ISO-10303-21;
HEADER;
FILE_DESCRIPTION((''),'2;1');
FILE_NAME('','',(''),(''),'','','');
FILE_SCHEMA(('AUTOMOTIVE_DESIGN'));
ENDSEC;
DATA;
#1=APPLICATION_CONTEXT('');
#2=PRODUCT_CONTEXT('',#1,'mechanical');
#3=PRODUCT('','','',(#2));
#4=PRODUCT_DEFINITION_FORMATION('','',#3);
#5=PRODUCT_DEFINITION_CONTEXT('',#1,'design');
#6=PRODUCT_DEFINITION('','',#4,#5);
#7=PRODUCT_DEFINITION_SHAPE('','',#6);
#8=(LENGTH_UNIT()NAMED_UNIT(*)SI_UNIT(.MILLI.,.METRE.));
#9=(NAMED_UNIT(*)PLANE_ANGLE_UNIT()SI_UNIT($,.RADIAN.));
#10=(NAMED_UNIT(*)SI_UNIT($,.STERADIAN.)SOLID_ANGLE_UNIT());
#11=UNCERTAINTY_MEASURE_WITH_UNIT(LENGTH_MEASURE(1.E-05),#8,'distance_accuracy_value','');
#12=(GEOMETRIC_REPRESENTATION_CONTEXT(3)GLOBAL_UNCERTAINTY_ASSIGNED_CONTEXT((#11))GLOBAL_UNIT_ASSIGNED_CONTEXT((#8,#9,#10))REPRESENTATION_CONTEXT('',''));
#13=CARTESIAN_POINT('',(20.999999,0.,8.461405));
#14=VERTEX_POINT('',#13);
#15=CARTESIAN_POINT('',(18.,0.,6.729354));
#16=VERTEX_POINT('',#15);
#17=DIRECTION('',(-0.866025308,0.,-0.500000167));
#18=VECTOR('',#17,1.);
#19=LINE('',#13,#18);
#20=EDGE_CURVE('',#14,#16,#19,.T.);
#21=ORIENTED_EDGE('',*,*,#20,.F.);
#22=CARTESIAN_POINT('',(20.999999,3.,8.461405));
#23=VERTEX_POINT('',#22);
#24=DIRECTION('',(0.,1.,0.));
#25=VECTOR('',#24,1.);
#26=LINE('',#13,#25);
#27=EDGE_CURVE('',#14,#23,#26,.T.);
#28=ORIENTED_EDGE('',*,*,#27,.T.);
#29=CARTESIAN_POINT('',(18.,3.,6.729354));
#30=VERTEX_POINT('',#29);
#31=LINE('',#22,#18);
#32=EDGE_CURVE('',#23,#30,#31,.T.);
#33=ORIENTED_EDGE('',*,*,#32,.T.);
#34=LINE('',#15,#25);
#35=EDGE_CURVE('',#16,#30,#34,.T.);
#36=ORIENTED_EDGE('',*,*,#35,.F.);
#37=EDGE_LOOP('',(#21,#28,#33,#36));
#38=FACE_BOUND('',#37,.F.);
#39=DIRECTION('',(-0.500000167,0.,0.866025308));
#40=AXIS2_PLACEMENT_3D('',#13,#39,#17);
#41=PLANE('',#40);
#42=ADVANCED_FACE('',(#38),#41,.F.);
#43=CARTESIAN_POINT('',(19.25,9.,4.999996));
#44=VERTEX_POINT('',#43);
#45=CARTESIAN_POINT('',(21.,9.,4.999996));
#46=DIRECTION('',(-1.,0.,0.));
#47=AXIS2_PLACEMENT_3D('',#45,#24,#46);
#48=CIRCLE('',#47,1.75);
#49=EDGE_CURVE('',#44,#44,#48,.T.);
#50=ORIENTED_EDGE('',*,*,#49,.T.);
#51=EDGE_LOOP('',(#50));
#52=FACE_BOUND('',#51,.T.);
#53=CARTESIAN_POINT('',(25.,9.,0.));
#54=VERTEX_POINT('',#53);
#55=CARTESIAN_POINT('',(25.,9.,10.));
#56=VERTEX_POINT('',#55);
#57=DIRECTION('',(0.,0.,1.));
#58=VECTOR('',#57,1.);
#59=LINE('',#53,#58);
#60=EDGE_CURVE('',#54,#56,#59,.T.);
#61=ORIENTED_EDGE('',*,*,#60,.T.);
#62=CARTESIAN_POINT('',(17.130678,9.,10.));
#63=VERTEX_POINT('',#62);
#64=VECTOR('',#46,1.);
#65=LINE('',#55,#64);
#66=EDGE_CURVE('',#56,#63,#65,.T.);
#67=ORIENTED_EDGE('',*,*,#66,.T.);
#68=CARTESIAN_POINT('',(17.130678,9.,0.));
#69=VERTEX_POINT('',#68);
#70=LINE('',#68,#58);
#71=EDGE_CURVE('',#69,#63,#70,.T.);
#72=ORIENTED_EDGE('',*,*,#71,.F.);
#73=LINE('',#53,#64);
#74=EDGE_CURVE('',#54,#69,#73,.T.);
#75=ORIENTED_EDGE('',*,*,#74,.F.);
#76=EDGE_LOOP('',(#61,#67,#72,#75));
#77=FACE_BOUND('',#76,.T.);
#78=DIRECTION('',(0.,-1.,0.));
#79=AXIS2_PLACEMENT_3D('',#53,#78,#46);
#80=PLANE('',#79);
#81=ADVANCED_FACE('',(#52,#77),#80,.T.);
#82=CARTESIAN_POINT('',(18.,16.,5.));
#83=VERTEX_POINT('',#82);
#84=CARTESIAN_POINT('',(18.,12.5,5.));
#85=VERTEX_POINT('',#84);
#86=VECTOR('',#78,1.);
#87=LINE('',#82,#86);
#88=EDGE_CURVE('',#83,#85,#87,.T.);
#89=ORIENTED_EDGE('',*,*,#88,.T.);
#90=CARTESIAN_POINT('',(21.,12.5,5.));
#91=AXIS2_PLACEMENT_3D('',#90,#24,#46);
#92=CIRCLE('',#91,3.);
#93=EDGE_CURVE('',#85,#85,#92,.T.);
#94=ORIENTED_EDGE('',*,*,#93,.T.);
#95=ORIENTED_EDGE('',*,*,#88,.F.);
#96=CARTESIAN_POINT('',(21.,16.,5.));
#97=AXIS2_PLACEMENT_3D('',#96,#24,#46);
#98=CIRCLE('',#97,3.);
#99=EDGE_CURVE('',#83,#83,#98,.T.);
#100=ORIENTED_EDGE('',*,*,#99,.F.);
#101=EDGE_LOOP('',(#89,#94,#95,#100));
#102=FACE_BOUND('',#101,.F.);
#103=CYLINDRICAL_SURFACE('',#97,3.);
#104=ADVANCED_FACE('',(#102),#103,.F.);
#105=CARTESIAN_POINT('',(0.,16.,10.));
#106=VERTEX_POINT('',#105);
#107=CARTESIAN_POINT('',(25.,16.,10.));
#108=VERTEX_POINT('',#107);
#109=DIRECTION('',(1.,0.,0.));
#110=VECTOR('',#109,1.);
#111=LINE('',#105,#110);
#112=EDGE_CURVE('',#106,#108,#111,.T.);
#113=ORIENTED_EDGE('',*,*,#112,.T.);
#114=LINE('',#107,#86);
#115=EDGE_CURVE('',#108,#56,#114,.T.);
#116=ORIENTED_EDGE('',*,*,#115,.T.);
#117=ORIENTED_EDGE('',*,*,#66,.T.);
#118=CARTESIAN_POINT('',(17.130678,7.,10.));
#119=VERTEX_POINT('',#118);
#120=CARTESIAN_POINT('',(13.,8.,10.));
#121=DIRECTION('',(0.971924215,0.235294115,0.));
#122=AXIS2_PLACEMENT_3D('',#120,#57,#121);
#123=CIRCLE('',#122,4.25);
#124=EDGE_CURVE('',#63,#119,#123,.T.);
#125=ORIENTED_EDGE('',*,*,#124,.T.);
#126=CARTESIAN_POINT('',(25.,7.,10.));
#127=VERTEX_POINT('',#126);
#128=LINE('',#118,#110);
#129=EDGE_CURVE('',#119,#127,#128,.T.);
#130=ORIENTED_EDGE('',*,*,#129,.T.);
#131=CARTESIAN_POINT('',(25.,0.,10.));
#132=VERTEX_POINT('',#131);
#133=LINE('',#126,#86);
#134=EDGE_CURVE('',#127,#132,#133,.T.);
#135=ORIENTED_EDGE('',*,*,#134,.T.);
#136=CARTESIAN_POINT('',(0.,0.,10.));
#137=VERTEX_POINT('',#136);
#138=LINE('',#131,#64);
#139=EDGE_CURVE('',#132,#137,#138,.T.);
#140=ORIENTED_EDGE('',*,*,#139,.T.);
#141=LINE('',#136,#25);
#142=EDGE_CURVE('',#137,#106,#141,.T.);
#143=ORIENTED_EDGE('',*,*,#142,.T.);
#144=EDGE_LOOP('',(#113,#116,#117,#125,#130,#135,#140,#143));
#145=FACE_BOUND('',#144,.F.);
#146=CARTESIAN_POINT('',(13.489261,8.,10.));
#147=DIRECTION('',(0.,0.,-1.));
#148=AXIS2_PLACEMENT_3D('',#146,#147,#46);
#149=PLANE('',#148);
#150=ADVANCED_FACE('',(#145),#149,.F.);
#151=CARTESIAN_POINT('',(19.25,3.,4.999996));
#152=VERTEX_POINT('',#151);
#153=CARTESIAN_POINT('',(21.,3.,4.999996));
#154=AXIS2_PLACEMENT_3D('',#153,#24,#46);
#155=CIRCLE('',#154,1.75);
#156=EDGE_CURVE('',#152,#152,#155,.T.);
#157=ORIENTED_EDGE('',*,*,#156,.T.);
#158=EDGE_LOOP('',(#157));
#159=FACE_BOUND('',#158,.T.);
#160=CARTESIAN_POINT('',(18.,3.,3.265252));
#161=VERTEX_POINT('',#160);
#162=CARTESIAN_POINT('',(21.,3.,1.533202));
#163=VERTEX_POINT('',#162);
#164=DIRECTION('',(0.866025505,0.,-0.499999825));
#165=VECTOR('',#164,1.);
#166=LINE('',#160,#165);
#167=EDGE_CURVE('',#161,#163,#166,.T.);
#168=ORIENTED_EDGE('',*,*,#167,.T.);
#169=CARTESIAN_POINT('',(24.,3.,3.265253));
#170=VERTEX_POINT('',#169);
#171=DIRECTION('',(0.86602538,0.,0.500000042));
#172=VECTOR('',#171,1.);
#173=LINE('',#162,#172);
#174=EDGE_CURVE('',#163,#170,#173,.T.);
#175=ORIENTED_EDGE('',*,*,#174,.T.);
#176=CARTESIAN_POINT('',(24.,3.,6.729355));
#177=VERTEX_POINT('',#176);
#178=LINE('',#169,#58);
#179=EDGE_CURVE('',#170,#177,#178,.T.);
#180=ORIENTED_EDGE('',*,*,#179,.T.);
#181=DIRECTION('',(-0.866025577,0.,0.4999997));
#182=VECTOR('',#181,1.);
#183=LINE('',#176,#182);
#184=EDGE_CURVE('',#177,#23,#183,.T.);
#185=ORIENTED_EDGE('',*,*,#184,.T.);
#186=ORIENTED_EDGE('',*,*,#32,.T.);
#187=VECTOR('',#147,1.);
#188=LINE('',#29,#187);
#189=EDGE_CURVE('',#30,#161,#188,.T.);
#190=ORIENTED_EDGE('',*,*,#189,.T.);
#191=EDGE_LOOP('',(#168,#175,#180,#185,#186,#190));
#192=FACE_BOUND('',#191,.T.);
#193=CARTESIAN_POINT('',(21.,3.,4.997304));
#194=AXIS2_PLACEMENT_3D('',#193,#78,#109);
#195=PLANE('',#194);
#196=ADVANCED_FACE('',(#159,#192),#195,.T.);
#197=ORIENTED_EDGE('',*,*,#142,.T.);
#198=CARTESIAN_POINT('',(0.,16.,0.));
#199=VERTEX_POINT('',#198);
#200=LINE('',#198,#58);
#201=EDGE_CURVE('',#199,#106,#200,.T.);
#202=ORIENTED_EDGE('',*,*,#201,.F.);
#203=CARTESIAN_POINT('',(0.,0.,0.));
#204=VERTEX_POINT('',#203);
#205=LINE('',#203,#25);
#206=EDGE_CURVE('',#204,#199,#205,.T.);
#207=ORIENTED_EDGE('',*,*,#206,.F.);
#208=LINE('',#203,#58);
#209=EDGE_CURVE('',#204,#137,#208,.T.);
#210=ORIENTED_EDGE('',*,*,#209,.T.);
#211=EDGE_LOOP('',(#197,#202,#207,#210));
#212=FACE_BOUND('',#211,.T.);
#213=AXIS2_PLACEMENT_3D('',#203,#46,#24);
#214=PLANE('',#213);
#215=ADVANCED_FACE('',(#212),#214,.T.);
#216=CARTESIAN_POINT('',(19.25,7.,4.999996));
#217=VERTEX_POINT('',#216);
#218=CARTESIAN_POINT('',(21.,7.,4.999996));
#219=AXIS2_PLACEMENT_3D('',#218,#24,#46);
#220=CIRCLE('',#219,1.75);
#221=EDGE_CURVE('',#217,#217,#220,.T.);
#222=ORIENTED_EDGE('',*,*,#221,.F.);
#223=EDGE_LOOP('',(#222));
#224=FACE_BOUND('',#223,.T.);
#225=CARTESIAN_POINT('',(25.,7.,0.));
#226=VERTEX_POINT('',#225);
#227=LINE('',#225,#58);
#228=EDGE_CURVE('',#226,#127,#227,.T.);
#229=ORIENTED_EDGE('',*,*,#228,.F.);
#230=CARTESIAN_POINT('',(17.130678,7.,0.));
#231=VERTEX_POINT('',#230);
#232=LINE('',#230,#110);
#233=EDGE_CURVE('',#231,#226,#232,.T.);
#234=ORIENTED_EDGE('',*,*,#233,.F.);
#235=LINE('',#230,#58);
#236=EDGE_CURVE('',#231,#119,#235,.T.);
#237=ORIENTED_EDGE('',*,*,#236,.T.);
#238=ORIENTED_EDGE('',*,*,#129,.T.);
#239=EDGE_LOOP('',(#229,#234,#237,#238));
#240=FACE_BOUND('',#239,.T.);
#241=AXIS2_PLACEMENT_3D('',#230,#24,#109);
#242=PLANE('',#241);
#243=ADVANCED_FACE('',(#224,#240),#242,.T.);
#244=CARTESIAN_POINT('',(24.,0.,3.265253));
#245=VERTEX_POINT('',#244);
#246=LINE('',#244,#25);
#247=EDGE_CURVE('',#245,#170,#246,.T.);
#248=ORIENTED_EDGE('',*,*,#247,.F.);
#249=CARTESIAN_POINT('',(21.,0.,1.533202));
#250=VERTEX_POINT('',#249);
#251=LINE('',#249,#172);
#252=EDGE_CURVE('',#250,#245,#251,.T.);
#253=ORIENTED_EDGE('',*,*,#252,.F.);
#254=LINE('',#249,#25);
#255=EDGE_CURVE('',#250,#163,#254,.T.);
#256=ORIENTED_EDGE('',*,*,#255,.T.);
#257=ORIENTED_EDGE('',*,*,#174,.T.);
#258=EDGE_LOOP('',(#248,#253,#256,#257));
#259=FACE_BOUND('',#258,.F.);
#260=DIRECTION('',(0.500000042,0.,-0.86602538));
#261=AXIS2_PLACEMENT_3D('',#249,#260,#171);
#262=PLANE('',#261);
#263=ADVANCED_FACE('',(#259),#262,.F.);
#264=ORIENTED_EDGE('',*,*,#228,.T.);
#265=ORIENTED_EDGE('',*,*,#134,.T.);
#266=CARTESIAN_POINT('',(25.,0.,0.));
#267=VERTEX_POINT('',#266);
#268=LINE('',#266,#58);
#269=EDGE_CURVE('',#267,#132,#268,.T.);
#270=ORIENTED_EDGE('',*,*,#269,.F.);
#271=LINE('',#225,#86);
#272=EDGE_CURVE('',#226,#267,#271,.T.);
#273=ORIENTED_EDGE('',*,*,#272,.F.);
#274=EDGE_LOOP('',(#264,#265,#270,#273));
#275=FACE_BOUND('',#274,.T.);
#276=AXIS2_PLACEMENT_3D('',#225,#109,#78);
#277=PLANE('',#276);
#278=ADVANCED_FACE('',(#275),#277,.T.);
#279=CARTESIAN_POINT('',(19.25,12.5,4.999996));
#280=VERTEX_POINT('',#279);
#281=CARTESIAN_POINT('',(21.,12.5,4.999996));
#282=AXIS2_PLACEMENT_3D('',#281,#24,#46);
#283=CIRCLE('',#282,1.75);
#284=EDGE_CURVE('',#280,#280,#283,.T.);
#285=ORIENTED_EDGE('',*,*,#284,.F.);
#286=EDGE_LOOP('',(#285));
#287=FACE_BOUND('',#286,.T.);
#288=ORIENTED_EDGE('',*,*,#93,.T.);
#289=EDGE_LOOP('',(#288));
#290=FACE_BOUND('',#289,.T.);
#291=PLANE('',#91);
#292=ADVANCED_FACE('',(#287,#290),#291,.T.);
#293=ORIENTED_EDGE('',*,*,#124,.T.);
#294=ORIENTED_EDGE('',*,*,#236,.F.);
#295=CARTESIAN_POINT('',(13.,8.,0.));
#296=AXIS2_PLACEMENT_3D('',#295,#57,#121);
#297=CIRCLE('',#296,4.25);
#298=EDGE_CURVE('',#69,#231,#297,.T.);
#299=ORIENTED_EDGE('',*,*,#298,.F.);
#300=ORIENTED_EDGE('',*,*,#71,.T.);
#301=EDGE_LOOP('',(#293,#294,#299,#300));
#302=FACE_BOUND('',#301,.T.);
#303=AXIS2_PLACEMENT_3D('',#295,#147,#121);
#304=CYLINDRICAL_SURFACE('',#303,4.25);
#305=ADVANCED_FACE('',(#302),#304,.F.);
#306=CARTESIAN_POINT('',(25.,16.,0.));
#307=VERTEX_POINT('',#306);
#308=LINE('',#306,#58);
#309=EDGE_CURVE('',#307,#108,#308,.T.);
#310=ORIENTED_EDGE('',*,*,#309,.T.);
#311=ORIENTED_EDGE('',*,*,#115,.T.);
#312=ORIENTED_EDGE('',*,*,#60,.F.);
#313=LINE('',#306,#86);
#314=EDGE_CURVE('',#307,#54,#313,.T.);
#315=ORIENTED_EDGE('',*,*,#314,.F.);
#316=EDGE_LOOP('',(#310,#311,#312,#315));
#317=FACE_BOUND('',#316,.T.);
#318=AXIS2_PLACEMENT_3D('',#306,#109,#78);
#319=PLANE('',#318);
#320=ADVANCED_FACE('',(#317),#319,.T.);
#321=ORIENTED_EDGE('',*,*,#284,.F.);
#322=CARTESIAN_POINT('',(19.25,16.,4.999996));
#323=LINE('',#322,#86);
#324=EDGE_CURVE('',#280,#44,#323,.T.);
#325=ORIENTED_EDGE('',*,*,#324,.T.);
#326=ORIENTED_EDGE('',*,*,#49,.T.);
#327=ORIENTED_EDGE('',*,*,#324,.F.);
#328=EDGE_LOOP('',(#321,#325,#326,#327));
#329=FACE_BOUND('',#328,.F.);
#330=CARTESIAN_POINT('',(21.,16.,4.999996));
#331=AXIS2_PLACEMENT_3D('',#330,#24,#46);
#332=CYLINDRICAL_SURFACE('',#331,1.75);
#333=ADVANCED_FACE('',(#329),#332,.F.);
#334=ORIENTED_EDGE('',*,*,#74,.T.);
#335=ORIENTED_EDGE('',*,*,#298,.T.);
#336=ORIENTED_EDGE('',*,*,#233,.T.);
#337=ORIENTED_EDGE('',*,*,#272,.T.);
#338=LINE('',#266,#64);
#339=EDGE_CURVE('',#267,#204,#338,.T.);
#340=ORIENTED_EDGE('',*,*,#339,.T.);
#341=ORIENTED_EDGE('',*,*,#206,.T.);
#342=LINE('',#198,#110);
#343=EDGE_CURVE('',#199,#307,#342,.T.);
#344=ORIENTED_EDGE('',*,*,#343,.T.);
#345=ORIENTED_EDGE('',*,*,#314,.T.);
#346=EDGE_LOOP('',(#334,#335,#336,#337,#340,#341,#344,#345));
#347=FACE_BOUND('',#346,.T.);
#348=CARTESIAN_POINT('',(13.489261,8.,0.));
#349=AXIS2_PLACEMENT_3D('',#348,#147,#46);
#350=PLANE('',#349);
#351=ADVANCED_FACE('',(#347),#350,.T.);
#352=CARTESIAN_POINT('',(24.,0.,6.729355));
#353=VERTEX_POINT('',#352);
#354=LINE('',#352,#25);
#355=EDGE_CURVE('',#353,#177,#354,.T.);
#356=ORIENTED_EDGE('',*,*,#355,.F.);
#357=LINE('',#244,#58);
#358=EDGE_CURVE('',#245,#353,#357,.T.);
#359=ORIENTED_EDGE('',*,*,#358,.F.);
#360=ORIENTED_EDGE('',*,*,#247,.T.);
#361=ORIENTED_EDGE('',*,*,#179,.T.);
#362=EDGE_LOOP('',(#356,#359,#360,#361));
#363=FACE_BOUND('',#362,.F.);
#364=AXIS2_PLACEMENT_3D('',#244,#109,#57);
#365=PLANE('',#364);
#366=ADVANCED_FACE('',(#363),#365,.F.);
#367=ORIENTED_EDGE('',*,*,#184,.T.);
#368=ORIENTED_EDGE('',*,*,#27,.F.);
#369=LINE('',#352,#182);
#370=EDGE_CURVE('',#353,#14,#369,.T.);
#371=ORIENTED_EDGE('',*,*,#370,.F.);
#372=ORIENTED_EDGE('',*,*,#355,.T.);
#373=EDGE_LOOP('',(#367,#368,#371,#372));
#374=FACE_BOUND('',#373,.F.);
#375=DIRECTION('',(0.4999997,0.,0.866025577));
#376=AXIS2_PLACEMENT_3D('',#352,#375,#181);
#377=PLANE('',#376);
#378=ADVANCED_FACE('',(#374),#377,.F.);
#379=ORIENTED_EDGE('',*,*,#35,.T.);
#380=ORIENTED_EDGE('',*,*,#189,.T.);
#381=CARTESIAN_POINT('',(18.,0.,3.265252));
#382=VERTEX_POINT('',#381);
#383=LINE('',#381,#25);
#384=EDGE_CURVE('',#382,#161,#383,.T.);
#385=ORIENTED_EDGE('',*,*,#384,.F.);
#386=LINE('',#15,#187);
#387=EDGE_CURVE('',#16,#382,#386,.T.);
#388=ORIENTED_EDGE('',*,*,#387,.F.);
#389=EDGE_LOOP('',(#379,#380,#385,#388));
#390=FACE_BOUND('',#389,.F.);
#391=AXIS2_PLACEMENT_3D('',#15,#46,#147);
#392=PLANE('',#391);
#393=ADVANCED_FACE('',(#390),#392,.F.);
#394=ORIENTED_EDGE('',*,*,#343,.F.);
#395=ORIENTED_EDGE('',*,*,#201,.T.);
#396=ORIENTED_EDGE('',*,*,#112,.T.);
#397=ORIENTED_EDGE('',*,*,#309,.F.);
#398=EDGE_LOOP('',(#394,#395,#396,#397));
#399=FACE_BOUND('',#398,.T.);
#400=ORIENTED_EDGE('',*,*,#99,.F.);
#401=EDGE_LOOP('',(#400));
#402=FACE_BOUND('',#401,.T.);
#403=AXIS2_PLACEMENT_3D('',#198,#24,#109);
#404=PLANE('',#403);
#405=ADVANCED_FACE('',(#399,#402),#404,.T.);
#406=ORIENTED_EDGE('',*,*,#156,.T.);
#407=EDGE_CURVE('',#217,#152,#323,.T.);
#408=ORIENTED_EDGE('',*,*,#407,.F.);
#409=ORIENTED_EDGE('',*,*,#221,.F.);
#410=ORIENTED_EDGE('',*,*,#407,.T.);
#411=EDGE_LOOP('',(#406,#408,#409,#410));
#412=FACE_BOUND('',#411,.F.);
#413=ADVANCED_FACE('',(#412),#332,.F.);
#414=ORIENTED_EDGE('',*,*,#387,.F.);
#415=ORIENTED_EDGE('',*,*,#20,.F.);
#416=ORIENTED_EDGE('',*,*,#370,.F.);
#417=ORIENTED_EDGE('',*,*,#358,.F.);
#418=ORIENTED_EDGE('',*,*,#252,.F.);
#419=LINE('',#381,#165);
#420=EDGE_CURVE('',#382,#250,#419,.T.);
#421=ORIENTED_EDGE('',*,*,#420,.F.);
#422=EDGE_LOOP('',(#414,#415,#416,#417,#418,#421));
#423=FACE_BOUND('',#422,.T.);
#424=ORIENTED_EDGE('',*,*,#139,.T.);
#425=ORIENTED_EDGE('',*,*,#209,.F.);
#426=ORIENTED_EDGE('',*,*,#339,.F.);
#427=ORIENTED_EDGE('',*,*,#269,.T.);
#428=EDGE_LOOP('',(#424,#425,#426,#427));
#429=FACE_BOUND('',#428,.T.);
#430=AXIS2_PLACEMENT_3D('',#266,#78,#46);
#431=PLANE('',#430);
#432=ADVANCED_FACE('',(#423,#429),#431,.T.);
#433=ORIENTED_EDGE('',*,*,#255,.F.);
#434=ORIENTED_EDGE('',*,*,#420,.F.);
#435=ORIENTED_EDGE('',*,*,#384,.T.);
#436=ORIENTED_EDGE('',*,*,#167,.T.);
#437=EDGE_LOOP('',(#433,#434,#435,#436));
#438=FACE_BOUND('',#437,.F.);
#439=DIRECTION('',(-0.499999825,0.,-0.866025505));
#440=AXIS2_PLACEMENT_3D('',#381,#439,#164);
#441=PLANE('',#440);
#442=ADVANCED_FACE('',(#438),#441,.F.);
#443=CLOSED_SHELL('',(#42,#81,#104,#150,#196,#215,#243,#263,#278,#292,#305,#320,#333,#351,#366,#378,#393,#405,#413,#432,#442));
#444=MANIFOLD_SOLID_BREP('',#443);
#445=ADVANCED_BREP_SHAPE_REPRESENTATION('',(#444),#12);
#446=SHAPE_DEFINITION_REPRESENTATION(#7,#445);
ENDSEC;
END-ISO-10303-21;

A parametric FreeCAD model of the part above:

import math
import FreeCAD as App
import Part
import Sketcher

V = App.Vector
Q = App.Units.Quantity

doc = App.newDocument("Part")
body = doc.addObject("PartDesign::Body", "Body")

sketch1 = body.newObject("Sketcher::SketchObject", "Sketch")
sketch1.AttachmentSupport = (doc.getObject("XY_Plane"), [""])
sketch1.MapMode = "FlatFace"
sketch1.addGeometry([
    Part.LineSegment(V(0, 16, 0), V(0, 0, 0)),
    Part.LineSegment(V(0, 0, 0), V(25, 0, 0)),
    Part.LineSegment(V(25, 0, 0), V(25, 7, 0)),
    Part.LineSegment(V(25, 7, 0), V(17.1, 7, 0)),
    Part.ArcOfCircle(Part.Circle(V(13, 8, 0), V(0, 0, 1), 4.3), math.radians(14), math.radians(346)),
    Part.LineSegment(V(17.1, 9, 0), V(25, 9, 0)),
    Part.LineSegment(V(25, 9, 0), V(25, 16, 0)),
    Part.LineSegment(V(25, 16, 0), V(0, 16, 0)),
], False)
sketch1.addConstraint([
    Sketcher.Constraint("Coincident", 0, 2, 1, 1),
    Sketcher.Constraint("Coincident", 1, 2, 2, 1),
    Sketcher.Constraint("Coincident", 2, 2, 3, 1),
    Sketcher.Constraint("Coincident", 3, 2, 4, 2),
    Sketcher.Constraint("Coincident", 4, 1, 5, 1),
    Sketcher.Constraint("Coincident", 5, 2, 6, 1),
    Sketcher.Constraint("Coincident", 6, 2, 7, 1),
    Sketcher.Constraint("Coincident", 7, 2, 0, 1),
    Sketcher.Constraint("Vertical", 0),
    Sketcher.Constraint("Horizontal", 1),
    Sketcher.Constraint("Vertical", 2),
    Sketcher.Constraint("Horizontal", 3),
    Sketcher.Constraint("Horizontal", 5),
    Sketcher.Constraint("Vertical", 6),
    Sketcher.Constraint("Horizontal", 7),
    Sketcher.Constraint("Coincident", 0, 2, -1, 1),
    Sketcher.Constraint("Vertical", 3, 2, 4, 1),
    Sketcher.Constraint("Vertical", 2, 2, 5, 2),
    Sketcher.Constraint("Equal", 2, 6),
    Sketcher.Constraint("DistanceX", 1, 1, 1, 2, 25.0),
    Sketcher.Constraint("DistanceY", 0, 2, 0, 1, 16.0),
    Sketcher.Constraint("DistanceY", 2, 1, 2, 2, 7.0),
    Sketcher.Constraint("Radius", 4, 4.25),
    Sketcher.Constraint("DistanceX", -1, 1, 4, 3, 13.0),
])
pad1 = body.newObject("PartDesign::Pad", "Pad")
pad1.Profile = sketch1
pad1.Length = 10

sketch2 = body.newObject("Sketcher::SketchObject", "Sketch001")
sketch2.AttachmentSupport = (doc.getObject("XZ_Plane"), [""])
sketch2.MapMode = "FlatFace"
sketch2.AttachmentOffset = App.Placement(V(0, 0, -16), App.Rotation())
sketch2.addGeometry(Part.Circle(V(21, 5, 0), V(0, 0, 1), 1.8), False)
sketch2.addConstraint([
    Sketcher.Constraint("Diameter", 0, 3.5),
    Sketcher.Constraint("DistanceX", -1, 1, 0, 3, 21.0),
    Sketcher.Constraint("DistanceY", -1, 1, 0, 3, 4.999996),
])
pocket1 = body.newObject("PartDesign::Pocket", "Pocket")
pocket1.Profile = sketch2
pocket1.Length = 16
pocket1.Reversed = True

sketch3 = body.newObject("Sketcher::SketchObject", "Sketch002")
sketch3.AttachmentSupport = (doc.getObject("XZ_Plane"), [""])
sketch3.MapMode = "FlatFace"
sketch3.AttachmentOffset = App.Placement(V(0, 0, -16), App.Rotation())
sketch3.addGeometry(Part.Circle(V(21, 5, 0), V(0, 0, 1), 3), False)
sketch3.addConstraint([
    Sketcher.Constraint("Diameter", 0, 6.0),
    Sketcher.Constraint("DistanceX", -1, 1, 0, 3, 21.0),
    Sketcher.Constraint("DistanceY", -1, 1, 0, 3, 5.0),
])
pocket2 = body.newObject("PartDesign::Pocket", "Pocket001")
pocket2.Profile = sketch3
pocket2.Length = 3.5
pocket2.Reversed = True

sketch4 = body.newObject("Sketcher::SketchObject", "Sketch003")
sketch4.AttachmentSupport = (doc.getObject("XZ_Plane"), [""])
sketch4.MapMode = "FlatFace"
sketch4.addGeometry([
    Part.LineSegment(V(21, 8.5, 0), V(18, 6.7, 0)),
    Part.LineSegment(V(18, 6.7, 0), V(18, 3.3, 0)),
    Part.LineSegment(V(18, 3.3, 0), V(21, 1.5, 0)),
    Part.LineSegment(V(21, 1.5, 0), V(24, 3.3, 0)),
    Part.LineSegment(V(24, 3.3, 0), V(24, 6.7, 0)),
    Part.LineSegment(V(24, 6.7, 0), V(21, 8.5, 0)),
], False)
sketch4.addConstraint([
    Sketcher.Constraint("Coincident", 0, 2, 1, 1),
    Sketcher.Constraint("Coincident", 1, 2, 2, 1),
    Sketcher.Constraint("Coincident", 2, 2, 3, 1),
    Sketcher.Constraint("Coincident", 3, 2, 4, 1),
    Sketcher.Constraint("Coincident", 4, 2, 5, 1),
    Sketcher.Constraint("Coincident", 5, 2, 0, 1),
    Sketcher.Constraint("Vertical", 1),
    Sketcher.Constraint("Vertical", 4),
    Sketcher.Constraint("Parallel", 0, 3),
    Sketcher.Constraint("Parallel", 2, 5),
    Sketcher.Constraint("Horizontal", 1, 2, 3, 2),
    Sketcher.Constraint("Horizontal", 0, 2, 4, 2),
    Sketcher.Constraint("Vertical", 2, 2, 5, 2),
    Sketcher.Constraint("Angle", 0, Q("-149.999989 deg")),
    Sketcher.Constraint("DistanceX", -1, 1, 0, 2, 18.0),
    Sketcher.Constraint("DistanceX", -1, 1, 2, 2, 21.0),
    Sketcher.Constraint("DistanceY", 1, 2, 1, 1, 3.464102),
    Sketcher.Constraint("DistanceY", -1, 1, 1, 2, 3.265252),
])
pocket3 = body.newObject("PartDesign::Pocket", "Pocket002")
pocket3.Profile = sketch4
pocket3.Length = 3

doc.recompute()
